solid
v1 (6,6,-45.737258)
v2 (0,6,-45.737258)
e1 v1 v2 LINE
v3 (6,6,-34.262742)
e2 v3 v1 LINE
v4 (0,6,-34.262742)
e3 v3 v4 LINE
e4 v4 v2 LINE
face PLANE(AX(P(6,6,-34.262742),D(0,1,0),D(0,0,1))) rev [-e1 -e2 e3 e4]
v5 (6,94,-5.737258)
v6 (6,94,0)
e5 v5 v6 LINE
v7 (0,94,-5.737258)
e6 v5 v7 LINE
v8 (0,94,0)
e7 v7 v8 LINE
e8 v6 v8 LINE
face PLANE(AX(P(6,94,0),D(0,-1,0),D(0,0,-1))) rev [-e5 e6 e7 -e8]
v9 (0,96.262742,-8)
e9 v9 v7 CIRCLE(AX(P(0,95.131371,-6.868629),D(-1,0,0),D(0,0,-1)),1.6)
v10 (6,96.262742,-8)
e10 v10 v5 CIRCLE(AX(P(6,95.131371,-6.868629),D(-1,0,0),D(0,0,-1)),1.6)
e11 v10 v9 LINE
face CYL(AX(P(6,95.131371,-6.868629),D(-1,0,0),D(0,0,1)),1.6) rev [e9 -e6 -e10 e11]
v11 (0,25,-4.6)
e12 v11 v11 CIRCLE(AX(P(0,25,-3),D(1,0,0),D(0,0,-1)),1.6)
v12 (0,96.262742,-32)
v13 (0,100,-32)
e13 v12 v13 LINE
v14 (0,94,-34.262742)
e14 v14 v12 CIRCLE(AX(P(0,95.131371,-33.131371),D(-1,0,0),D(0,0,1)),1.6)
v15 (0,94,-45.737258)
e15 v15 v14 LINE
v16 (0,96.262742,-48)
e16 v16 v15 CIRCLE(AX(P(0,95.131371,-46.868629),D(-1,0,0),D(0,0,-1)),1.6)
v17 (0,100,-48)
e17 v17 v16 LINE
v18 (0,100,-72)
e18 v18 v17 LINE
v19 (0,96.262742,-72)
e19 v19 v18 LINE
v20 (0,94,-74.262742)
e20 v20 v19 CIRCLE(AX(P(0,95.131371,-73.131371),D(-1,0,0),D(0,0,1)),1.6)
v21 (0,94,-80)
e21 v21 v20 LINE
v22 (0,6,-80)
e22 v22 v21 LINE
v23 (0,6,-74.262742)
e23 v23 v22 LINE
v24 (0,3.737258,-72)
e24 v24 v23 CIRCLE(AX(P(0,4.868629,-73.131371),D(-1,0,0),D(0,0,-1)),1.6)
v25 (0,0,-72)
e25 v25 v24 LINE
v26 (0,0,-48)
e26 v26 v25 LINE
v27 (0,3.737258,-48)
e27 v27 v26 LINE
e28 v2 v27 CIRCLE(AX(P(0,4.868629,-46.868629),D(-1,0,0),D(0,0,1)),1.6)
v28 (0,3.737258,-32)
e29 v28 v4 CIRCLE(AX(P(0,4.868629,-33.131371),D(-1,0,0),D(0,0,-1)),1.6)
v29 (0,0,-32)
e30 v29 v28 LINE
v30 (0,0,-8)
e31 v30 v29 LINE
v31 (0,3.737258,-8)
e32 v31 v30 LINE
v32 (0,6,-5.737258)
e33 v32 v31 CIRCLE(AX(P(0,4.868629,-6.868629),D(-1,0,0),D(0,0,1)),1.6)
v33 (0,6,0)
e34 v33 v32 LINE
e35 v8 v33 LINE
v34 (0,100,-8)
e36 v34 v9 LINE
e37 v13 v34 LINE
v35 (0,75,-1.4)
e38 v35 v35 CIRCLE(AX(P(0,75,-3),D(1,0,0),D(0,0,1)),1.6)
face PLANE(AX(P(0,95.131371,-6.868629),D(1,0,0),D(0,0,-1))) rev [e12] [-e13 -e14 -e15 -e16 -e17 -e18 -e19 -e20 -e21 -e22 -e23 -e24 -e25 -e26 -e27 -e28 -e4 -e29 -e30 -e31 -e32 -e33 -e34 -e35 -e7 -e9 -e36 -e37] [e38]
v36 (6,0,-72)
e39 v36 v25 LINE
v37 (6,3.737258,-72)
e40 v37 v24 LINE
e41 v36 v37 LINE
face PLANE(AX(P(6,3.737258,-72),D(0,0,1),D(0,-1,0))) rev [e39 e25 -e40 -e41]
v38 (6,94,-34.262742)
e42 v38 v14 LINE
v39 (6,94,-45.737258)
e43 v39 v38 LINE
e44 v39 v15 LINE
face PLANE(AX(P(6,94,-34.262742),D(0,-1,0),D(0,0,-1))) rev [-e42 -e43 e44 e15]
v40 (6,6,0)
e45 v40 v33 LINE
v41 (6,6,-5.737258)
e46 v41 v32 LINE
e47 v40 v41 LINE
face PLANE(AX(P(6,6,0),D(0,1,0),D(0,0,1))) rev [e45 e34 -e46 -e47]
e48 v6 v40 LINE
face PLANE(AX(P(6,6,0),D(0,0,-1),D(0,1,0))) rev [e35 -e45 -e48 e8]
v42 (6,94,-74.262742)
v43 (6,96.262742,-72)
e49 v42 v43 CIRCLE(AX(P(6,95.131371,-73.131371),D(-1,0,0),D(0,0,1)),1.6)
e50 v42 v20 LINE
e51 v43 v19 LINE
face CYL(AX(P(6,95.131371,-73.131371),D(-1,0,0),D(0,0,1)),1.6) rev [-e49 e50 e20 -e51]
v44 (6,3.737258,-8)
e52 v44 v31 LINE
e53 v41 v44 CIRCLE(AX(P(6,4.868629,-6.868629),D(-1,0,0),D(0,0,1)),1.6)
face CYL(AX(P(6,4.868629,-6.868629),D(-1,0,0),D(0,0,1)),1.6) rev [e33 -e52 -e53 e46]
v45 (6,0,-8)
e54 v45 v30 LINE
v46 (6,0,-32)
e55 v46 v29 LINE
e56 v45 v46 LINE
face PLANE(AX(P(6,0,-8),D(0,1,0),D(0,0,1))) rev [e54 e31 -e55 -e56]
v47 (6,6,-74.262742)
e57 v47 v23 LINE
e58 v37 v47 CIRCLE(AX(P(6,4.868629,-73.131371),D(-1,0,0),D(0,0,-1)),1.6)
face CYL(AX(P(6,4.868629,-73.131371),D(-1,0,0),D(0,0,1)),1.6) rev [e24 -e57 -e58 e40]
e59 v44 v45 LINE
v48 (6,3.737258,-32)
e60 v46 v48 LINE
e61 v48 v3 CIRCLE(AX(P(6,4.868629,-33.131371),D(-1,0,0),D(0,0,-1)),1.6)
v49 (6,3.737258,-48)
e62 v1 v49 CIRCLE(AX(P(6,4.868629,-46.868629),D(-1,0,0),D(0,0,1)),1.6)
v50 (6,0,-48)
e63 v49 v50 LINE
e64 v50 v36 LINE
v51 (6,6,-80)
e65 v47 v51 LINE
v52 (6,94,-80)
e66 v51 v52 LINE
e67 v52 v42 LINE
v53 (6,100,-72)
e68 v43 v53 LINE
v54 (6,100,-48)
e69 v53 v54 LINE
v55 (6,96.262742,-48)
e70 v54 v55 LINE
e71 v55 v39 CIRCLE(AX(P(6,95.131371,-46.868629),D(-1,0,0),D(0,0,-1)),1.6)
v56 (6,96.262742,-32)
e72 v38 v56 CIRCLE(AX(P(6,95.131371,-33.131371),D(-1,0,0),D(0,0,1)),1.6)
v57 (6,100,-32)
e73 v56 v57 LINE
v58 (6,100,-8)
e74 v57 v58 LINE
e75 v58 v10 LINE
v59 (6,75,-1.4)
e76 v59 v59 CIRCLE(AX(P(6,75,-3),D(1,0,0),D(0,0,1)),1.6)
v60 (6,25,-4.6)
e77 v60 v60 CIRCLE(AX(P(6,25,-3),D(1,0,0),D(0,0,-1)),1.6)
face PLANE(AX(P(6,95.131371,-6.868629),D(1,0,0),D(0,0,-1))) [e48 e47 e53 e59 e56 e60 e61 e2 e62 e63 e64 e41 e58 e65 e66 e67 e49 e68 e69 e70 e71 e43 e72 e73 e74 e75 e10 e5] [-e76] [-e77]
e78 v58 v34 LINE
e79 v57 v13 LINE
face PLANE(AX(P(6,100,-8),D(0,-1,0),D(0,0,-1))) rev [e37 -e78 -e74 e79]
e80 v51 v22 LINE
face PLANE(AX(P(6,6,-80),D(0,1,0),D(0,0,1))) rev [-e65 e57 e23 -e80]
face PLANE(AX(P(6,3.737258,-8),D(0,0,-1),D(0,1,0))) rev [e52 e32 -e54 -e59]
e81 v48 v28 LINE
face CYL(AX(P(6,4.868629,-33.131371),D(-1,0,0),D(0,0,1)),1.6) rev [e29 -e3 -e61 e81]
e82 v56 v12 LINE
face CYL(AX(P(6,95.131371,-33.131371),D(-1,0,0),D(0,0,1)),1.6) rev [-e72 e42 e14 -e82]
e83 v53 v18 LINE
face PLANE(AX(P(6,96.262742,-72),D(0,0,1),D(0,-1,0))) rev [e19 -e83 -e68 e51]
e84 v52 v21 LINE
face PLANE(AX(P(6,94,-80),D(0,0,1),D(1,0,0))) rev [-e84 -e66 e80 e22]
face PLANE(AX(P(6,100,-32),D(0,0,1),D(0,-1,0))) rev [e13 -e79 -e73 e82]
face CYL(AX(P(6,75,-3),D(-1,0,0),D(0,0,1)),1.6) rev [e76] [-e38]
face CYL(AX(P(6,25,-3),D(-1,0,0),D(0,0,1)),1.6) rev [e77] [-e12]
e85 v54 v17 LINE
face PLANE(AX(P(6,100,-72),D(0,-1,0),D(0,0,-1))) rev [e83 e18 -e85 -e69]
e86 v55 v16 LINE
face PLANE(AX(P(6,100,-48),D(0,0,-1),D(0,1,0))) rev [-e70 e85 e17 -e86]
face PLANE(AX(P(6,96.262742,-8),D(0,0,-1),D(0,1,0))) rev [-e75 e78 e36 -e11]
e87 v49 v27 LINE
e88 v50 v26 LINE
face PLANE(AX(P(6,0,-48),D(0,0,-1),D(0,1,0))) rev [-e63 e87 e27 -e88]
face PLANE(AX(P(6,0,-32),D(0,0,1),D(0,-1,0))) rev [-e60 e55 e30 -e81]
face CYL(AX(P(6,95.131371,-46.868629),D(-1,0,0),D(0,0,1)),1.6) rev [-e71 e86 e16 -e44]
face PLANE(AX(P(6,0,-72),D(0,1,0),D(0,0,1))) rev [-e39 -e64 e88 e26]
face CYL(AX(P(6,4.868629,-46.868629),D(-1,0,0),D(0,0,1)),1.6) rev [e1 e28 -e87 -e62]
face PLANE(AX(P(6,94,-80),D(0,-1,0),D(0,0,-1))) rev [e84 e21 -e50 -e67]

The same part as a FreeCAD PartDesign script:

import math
import FreeCAD as App
import Part
import Sketcher
Q = App.Units.Quantity

doc = App.newDocument("Part")
body = doc.addObject("PartDesign::Body", "Body")

sketch1 = doc.addObject("Sketcher::SketchObject", "Sketch")
body.addObject(sketch1)
sketch1.AttachmentSupport = (doc.YZ_Plane, [""])
sketch1.MapMode = "FlatFace"
sketch1.addGeometry([
    Part.LineSegment(App.Vector(94, -5.737258, 0), App.Vector(94, 0, 0)),
    Part.LineSegment(App.Vector(94, 0, 0), App.Vector(6, 0, 0)),
    Part.LineSegment(App.Vector(6, 0, 0), App.Vector(6, -5.737258, 0)),
    Part.ArcOfCircle(Part.Circle(App.Vector(4.868629, -6.868629, 0), App.Vector(0, 0, 1), 1.6), math.radians(-135), math.radians(45)),
    Part.LineSegment(App.Vector(3.737258, -8, 0), App.Vector(0, -8, 0)),
    Part.LineSegment(App.Vector(0, -8, 0), App.Vector(0, -32, 0)),
    Part.LineSegment(App.Vector(0, -32, 0), App.Vector(3.737258, -32, 0)),
    Part.ArcOfCircle(Part.Circle(App.Vector(4.868629, -33.131371, 0), App.Vector(0, 0, 1), 1.6), math.radians(-45), math.radians(135)),
    Part.LineSegment(App.Vector(6, -34.262742, 0), App.Vector(6, -45.737258, 0)),
    Part.ArcOfCircle(Part.Circle(App.Vector(4.868629, -46.868629, 0), App.Vector(0, 0, 1), 1.6), math.radians(-135), math.radians(45)),
    Part.LineSegment(App.Vector(3.737258, -48, 0), App.Vector(0, -48, 0)),
    Part.LineSegment(App.Vector(0, -48, 0), App.Vector(0, -72, 0)),
    Part.LineSegment(App.Vector(0, -72, 0), App.Vector(3.737258, -72, 0)),
    Part.ArcOfCircle(Part.Circle(App.Vector(4.868629, -73.131371, 0), App.Vector(0, 0, 1), 1.6), math.radians(-45), math.radians(135)),
    Part.LineSegment(App.Vector(6, -74.262742, 0), App.Vector(6, -80, 0)),
    Part.LineSegment(App.Vector(6, -80, 0), App.Vector(94, -80, 0)),
    Part.LineSegment(App.Vector(94, -80, 0), App.Vector(94, -74.262742, 0)),
    Part.ArcOfCircle(Part.Circle(App.Vector(95.131371, -73.131371, 0), App.Vector(0, 0, 1), 1.6), math.radians(45), math.radians(225)),
    Part.LineSegment(App.Vector(96.262742, -72, 0), App.Vector(100, -72, 0)),
    Part.LineSegment(App.Vector(100, -72, 0), App.Vector(100, -48, 0)),
    Part.LineSegment(App.Vector(100, -48, 0), App.Vector(96.262742, -48, 0)),
    Part.ArcOfCircle(Part.Circle(App.Vector(95.131371, -46.868629, 0), App.Vector(0, 0, 1), 1.6), math.radians(135), math.radians(315)),
    Part.LineSegment(App.Vector(94, -45.737258, 0), App.Vector(94, -34.262742, 0)),
    Part.ArcOfCircle(Part.Circle(App.Vector(95.131371, -33.131371, 0), App.Vector(0, 0, 1), 1.6), math.radians(45), math.radians(225)),
    Part.LineSegment(App.Vector(96.262742, -32, 0), App.Vector(100, -32, 0)),
    Part.LineSegment(App.Vector(100, -32, 0), App.Vector(100, -8, 0)),
    Part.LineSegment(App.Vector(100, -8, 0), App.Vector(96.262742, -8, 0)),
    Part.ArcOfCircle(Part.Circle(App.Vector(95.131371, -6.868629, 0), App.Vector(0, 0, 1), 1.6), math.radians(135), math.radians(315)),
    Part.Circle(App.Vector(25, -3, 0), App.Vector(0, 0, 1), 1.6),
    Part.Circle(App.Vector(75, -3, 0), App.Vector(0, 0, 1), 1.6),
], False)
sketch1.addConstraint([
    Sketcher.Constraint("Coincident", 0, 2, 1, 1),
    Sketcher.Constraint("Coincident", 1, 2, 2, 1),
    Sketcher.Constraint("Coincident", 2, 2, 3, 2),
    Sketcher.Constraint("Coincident", 3, 1, 4, 1),
    Sketcher.Constraint("Coincident", 4, 2, 5, 1),
    Sketcher.Constraint("Coincident", 5, 2, 6, 1),
    Sketcher.Constraint("Coincident", 6, 2, 7, 2),
    Sketcher.Constraint("Coincident", 7, 1, 8, 1),
    Sketcher.Constraint("Coincident", 8, 2, 9, 2),
    Sketcher.Constraint("Coincident", 9, 1, 10, 1),
    Sketcher.Constraint("Coincident", 10, 2, 11, 1),
    Sketcher.Constraint("Coincident", 11, 2, 12, 1),
    Sketcher.Constraint("Coincident", 12, 2, 13, 2),
    Sketcher.Constraint("Coincident", 13, 1, 14, 1),
    Sketcher.Constraint("Coincident", 14, 2, 15, 1),
    Sketcher.Constraint("Coincident", 15, 2, 16, 1),
    Sketcher.Constraint("Coincident", 16, 2, 17, 2),
    Sketcher.Constraint("Coincident", 17, 1, 18, 1),
    Sketcher.Constraint("Coincident", 18, 2, 19, 1),
    Sketcher.Constraint("Coincident", 19, 2, 20, 1),
    Sketcher.Constraint("Coincident", 20, 2, 21, 2),
    Sketcher.Constraint("Coincident", 21, 1, 22, 1),
    Sketcher.Constraint("Coincident", 22, 2, 23, 2),
    Sketcher.Constraint("Coincident", 23, 1, 24, 1),
    Sketcher.Constraint("Coincident", 24, 2, 25, 1),
    Sketcher.Constraint("Coincident", 25, 2, 26, 1),
    Sketcher.Constraint("Coincident", 26, 2, 27, 2),
    Sketcher.Constraint("Coincident", 27, 1, 0, 1),
    Sketcher.Constraint("Vertical", 0),
    Sketcher.Constraint("Horizontal", 1),
    Sketcher.Constraint("Vertical", 2),
    Sketcher.Constraint("Horizontal", 4),
    Sketcher.Constraint("Vertical", 5),
    Sketcher.Constraint("Horizontal", 6),
    Sketcher.Constraint("Vertical", 8),
    Sketcher.Constraint("Horizontal", 10),
    Sketcher.Constraint("Vertical", 11),
    Sketcher.Constraint("Horizontal", 12),
    Sketcher.Constraint("Vertical", 14),
    Sketcher.Constraint("Horizontal", 15),
    Sketcher.Constraint("Vertical", 16),
    Sketcher.Constraint("Horizontal", 18),
    Sketcher.Constraint("Vertical", 19),
    Sketcher.Constraint("Horizontal", 20),
    Sketcher.Constraint("Vertical", 22),
    Sketcher.Constraint("Horizontal", 24),
    Sketcher.Constraint("Vertical", 25),
    Sketcher.Constraint("Horizontal", 26),
    Sketcher.Constraint("Equal", 3, 7),
    Sketcher.Constraint("Equal", 7, 9),
    Sketcher.Constraint("Equal", 9, 13),
    Sketcher.Constraint("Equal", 13, 17),
    Sketcher.Constraint("Equal", 17, 21),
    Sketcher.Constraint("Equal", 21, 23),
    Sketcher.Constraint("Equal", 23, 27),
    Sketcher.Constraint("Equal", 27, 28),
    Sketcher.Constraint("Equal", 28, 29),
    Sketcher.Constraint("PointOnObject", 0, 2, -1),
    Sketcher.Constraint("PointOnObject", 4, 2, -2),
    Sketcher.Constraint("PointOnObject", 10, 2, -2),
    Sketcher.Constraint("Horizontal", 13, 3, 17, 3),
    Sketcher.Constraint("Horizontal", 9, 3, 21, 3),
    Sketcher.Constraint("Horizontal", 7, 3, 23, 3),
    Sketcher.Constraint("Horizontal", 3, 3, 27, 3),
    Sketcher.Constraint("Horizontal", 28, 3, 29, 3),
    Sketcher.Constraint("Horizontal", 13, 1, 16, 2),
    Sketcher.Constraint("Horizontal", 12, 2, 17, 1),
    Sketcher.Constraint("Horizontal", 10, 2, 19, 2),
    Sketcher.Constraint("Horizontal", 8, 2, 21, 1),
    Sketcher.Constraint("Horizontal", 7, 1, 22, 2),
    Sketcher.Constraint("Horizontal", 6, 2, 23, 1),
    Sketcher.Constraint("Horizontal", 4, 2, 25, 2),
    Sketcher.Constraint("Horizontal", 2, 2, 27, 1),
    Sketcher.Constraint("Vertical", 3, 3, 7, 3),
    Sketcher.Constraint("Vertical", 7, 3, 9, 3),
    Sketcher.Constraint("Vertical", 9, 3, 13, 3),
    Sketcher.Constraint("Vertical", 17, 3, 21, 3),
    Sketcher.Constraint("Vertical", 23, 3, 27, 3),
    Sketcher.Constraint("Vertical", 3, 1, 6, 2),
    Sketcher.Constraint("Vertical", 2, 2, 7, 1),
    Sketcher.Constraint("Vertical", 6, 2, 9, 1),
    Sketcher.Constraint("Vertical", 9, 1, 12, 2),
    Sketcher.Constraint("Vertical", 8, 2, 13, 1),
    Sketcher.Constraint("Vertical", 19, 2, 24, 2),
    Sketcher.Constraint("Equal", 12, 18),
    Sketcher.Constraint("Equal", 5, 11),
    Sketcher.Constraint("Equal", 2, 14),
    Sketcher.Constraint("Diameter", 28, Q("3.2 mm")),
    Sketcher.Constraint("DistanceX", 1, 2, 1, 1, Q("88 mm")),
    Sketcher.Constraint("DistanceY", 5, 2, 5, 1, Q("24 mm")),
    Sketcher.Constraint("DistanceX", -1, 1, 28, 3, Q("25 mm")),
    Sketcher.Constraint("DistanceY", 28, 3, -1, 1, Q("3 mm")),
    Sketcher.Constraint("DistanceX", -1, 1, 29, 3, Q("75 mm")),
    Sketcher.Constraint("DistanceX", -1, 1, 0, 2, Q("94 mm")),
    Sketcher.Constraint("DistanceY", 3, 1, -1, 1, Q("8 mm")),
    Sketcher.Constraint("DistanceY", 9, 1, -1, 1, Q("48 mm")),
    Sketcher.Constraint("DistanceX", 4, 2, 4, 1, Q("3.737258 mm")),
    Sketcher.Constraint("DistanceX", -1, 1, 3, 3, Q("4.868629 mm")),
])
pad1 = doc.addObject("PartDesign::Pad", "Pad")
body.addObject(pad1)
pad1.Profile = sketch1
pad1.Length = 6

doc.recompute()
